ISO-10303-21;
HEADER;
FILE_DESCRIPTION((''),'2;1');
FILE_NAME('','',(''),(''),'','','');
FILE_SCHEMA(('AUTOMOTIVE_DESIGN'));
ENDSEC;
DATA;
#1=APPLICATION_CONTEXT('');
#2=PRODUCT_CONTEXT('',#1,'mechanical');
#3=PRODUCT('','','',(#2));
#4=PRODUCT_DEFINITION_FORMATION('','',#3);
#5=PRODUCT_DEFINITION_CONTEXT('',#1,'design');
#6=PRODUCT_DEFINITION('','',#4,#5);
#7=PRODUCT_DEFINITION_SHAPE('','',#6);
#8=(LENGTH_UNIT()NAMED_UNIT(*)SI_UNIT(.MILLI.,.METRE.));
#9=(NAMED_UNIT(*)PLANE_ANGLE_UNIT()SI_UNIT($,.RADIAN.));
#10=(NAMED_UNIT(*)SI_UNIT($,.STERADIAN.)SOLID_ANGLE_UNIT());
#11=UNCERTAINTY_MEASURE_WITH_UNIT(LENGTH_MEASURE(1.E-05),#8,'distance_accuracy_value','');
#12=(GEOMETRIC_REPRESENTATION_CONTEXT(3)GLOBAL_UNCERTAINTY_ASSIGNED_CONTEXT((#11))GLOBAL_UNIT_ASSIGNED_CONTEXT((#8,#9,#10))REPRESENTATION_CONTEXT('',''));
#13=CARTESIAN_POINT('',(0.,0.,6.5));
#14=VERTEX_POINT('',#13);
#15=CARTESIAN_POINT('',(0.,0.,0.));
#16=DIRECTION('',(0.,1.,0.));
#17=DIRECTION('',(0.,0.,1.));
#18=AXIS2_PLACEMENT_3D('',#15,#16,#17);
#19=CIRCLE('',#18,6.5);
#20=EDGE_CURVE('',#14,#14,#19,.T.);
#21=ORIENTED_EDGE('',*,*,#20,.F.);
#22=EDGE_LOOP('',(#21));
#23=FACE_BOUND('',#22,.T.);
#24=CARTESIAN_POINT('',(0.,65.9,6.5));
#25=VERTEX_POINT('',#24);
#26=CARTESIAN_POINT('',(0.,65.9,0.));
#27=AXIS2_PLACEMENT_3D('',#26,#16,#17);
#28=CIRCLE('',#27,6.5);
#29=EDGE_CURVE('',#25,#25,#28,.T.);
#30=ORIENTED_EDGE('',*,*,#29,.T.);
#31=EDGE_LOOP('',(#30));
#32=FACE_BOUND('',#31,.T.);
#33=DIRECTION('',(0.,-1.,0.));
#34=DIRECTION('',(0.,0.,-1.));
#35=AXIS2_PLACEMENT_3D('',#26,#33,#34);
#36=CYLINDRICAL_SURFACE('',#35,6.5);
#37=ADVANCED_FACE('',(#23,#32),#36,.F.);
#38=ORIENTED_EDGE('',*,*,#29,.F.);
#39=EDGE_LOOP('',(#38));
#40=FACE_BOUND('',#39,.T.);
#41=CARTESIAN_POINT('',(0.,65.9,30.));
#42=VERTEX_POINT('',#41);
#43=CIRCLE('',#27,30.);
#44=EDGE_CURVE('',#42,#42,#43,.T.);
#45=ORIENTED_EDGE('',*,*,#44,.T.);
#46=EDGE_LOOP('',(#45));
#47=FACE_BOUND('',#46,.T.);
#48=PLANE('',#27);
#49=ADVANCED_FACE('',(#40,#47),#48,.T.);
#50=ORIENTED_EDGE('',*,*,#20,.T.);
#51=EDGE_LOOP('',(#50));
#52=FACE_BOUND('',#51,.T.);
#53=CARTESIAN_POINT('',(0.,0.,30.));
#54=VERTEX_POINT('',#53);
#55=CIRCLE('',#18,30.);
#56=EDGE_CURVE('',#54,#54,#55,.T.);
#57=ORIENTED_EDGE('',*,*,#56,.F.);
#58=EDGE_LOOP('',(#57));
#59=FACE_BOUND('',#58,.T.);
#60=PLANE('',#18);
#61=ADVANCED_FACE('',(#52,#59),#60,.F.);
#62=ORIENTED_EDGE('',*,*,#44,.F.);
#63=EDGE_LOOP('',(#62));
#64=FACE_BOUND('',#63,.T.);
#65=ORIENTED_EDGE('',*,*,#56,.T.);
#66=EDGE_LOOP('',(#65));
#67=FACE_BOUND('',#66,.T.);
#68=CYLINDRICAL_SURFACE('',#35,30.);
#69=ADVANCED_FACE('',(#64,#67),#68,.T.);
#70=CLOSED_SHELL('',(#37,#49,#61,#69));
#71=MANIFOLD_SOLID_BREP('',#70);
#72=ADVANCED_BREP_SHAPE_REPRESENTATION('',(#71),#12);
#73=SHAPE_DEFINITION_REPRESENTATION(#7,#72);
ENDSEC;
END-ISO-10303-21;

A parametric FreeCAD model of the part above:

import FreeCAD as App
import Part
import Sketcher
Q = App.Units.Quantity

doc = App.newDocument("Part")
body = doc.addObject("PartDesign::Body", "Body")

sketch1 = body.newObject("Sketcher::SketchObject", "Sketch")
sketch1.AttachmentSupport = (doc.getObject("XZ_Plane"), [""])
sketch1.MapMode = "FlatFace"
sketch1.addGeometry(Part.Circle(App.Vector(0, 0, 0), App.Vector(0, 0, 1), 30), False)
sketch1.addGeometry(Part.Circle(App.Vector(0, 0, 0), App.Vector(0, 0, 1), 6), False)
sketch1.addConstraint(Sketcher.Constraint("Coincident", 0, 3, -1, 1))
sketch1.addConstraint(Sketcher.Constraint("Coincident", 1, 3, -1, 1))
sketch1.addConstraint(Sketcher.Constraint("Diameter", 0, Q("60 mm")))
sketch1.addConstraint(Sketcher.Constraint("Diameter", 1, Q("13 mm")))
pad1 = body.newObject("PartDesign::Pad", "Pad")
pad1.Profile = sketch1
pad1.Length = 65.9
pad1.Reversed = True

doc.recompute()
